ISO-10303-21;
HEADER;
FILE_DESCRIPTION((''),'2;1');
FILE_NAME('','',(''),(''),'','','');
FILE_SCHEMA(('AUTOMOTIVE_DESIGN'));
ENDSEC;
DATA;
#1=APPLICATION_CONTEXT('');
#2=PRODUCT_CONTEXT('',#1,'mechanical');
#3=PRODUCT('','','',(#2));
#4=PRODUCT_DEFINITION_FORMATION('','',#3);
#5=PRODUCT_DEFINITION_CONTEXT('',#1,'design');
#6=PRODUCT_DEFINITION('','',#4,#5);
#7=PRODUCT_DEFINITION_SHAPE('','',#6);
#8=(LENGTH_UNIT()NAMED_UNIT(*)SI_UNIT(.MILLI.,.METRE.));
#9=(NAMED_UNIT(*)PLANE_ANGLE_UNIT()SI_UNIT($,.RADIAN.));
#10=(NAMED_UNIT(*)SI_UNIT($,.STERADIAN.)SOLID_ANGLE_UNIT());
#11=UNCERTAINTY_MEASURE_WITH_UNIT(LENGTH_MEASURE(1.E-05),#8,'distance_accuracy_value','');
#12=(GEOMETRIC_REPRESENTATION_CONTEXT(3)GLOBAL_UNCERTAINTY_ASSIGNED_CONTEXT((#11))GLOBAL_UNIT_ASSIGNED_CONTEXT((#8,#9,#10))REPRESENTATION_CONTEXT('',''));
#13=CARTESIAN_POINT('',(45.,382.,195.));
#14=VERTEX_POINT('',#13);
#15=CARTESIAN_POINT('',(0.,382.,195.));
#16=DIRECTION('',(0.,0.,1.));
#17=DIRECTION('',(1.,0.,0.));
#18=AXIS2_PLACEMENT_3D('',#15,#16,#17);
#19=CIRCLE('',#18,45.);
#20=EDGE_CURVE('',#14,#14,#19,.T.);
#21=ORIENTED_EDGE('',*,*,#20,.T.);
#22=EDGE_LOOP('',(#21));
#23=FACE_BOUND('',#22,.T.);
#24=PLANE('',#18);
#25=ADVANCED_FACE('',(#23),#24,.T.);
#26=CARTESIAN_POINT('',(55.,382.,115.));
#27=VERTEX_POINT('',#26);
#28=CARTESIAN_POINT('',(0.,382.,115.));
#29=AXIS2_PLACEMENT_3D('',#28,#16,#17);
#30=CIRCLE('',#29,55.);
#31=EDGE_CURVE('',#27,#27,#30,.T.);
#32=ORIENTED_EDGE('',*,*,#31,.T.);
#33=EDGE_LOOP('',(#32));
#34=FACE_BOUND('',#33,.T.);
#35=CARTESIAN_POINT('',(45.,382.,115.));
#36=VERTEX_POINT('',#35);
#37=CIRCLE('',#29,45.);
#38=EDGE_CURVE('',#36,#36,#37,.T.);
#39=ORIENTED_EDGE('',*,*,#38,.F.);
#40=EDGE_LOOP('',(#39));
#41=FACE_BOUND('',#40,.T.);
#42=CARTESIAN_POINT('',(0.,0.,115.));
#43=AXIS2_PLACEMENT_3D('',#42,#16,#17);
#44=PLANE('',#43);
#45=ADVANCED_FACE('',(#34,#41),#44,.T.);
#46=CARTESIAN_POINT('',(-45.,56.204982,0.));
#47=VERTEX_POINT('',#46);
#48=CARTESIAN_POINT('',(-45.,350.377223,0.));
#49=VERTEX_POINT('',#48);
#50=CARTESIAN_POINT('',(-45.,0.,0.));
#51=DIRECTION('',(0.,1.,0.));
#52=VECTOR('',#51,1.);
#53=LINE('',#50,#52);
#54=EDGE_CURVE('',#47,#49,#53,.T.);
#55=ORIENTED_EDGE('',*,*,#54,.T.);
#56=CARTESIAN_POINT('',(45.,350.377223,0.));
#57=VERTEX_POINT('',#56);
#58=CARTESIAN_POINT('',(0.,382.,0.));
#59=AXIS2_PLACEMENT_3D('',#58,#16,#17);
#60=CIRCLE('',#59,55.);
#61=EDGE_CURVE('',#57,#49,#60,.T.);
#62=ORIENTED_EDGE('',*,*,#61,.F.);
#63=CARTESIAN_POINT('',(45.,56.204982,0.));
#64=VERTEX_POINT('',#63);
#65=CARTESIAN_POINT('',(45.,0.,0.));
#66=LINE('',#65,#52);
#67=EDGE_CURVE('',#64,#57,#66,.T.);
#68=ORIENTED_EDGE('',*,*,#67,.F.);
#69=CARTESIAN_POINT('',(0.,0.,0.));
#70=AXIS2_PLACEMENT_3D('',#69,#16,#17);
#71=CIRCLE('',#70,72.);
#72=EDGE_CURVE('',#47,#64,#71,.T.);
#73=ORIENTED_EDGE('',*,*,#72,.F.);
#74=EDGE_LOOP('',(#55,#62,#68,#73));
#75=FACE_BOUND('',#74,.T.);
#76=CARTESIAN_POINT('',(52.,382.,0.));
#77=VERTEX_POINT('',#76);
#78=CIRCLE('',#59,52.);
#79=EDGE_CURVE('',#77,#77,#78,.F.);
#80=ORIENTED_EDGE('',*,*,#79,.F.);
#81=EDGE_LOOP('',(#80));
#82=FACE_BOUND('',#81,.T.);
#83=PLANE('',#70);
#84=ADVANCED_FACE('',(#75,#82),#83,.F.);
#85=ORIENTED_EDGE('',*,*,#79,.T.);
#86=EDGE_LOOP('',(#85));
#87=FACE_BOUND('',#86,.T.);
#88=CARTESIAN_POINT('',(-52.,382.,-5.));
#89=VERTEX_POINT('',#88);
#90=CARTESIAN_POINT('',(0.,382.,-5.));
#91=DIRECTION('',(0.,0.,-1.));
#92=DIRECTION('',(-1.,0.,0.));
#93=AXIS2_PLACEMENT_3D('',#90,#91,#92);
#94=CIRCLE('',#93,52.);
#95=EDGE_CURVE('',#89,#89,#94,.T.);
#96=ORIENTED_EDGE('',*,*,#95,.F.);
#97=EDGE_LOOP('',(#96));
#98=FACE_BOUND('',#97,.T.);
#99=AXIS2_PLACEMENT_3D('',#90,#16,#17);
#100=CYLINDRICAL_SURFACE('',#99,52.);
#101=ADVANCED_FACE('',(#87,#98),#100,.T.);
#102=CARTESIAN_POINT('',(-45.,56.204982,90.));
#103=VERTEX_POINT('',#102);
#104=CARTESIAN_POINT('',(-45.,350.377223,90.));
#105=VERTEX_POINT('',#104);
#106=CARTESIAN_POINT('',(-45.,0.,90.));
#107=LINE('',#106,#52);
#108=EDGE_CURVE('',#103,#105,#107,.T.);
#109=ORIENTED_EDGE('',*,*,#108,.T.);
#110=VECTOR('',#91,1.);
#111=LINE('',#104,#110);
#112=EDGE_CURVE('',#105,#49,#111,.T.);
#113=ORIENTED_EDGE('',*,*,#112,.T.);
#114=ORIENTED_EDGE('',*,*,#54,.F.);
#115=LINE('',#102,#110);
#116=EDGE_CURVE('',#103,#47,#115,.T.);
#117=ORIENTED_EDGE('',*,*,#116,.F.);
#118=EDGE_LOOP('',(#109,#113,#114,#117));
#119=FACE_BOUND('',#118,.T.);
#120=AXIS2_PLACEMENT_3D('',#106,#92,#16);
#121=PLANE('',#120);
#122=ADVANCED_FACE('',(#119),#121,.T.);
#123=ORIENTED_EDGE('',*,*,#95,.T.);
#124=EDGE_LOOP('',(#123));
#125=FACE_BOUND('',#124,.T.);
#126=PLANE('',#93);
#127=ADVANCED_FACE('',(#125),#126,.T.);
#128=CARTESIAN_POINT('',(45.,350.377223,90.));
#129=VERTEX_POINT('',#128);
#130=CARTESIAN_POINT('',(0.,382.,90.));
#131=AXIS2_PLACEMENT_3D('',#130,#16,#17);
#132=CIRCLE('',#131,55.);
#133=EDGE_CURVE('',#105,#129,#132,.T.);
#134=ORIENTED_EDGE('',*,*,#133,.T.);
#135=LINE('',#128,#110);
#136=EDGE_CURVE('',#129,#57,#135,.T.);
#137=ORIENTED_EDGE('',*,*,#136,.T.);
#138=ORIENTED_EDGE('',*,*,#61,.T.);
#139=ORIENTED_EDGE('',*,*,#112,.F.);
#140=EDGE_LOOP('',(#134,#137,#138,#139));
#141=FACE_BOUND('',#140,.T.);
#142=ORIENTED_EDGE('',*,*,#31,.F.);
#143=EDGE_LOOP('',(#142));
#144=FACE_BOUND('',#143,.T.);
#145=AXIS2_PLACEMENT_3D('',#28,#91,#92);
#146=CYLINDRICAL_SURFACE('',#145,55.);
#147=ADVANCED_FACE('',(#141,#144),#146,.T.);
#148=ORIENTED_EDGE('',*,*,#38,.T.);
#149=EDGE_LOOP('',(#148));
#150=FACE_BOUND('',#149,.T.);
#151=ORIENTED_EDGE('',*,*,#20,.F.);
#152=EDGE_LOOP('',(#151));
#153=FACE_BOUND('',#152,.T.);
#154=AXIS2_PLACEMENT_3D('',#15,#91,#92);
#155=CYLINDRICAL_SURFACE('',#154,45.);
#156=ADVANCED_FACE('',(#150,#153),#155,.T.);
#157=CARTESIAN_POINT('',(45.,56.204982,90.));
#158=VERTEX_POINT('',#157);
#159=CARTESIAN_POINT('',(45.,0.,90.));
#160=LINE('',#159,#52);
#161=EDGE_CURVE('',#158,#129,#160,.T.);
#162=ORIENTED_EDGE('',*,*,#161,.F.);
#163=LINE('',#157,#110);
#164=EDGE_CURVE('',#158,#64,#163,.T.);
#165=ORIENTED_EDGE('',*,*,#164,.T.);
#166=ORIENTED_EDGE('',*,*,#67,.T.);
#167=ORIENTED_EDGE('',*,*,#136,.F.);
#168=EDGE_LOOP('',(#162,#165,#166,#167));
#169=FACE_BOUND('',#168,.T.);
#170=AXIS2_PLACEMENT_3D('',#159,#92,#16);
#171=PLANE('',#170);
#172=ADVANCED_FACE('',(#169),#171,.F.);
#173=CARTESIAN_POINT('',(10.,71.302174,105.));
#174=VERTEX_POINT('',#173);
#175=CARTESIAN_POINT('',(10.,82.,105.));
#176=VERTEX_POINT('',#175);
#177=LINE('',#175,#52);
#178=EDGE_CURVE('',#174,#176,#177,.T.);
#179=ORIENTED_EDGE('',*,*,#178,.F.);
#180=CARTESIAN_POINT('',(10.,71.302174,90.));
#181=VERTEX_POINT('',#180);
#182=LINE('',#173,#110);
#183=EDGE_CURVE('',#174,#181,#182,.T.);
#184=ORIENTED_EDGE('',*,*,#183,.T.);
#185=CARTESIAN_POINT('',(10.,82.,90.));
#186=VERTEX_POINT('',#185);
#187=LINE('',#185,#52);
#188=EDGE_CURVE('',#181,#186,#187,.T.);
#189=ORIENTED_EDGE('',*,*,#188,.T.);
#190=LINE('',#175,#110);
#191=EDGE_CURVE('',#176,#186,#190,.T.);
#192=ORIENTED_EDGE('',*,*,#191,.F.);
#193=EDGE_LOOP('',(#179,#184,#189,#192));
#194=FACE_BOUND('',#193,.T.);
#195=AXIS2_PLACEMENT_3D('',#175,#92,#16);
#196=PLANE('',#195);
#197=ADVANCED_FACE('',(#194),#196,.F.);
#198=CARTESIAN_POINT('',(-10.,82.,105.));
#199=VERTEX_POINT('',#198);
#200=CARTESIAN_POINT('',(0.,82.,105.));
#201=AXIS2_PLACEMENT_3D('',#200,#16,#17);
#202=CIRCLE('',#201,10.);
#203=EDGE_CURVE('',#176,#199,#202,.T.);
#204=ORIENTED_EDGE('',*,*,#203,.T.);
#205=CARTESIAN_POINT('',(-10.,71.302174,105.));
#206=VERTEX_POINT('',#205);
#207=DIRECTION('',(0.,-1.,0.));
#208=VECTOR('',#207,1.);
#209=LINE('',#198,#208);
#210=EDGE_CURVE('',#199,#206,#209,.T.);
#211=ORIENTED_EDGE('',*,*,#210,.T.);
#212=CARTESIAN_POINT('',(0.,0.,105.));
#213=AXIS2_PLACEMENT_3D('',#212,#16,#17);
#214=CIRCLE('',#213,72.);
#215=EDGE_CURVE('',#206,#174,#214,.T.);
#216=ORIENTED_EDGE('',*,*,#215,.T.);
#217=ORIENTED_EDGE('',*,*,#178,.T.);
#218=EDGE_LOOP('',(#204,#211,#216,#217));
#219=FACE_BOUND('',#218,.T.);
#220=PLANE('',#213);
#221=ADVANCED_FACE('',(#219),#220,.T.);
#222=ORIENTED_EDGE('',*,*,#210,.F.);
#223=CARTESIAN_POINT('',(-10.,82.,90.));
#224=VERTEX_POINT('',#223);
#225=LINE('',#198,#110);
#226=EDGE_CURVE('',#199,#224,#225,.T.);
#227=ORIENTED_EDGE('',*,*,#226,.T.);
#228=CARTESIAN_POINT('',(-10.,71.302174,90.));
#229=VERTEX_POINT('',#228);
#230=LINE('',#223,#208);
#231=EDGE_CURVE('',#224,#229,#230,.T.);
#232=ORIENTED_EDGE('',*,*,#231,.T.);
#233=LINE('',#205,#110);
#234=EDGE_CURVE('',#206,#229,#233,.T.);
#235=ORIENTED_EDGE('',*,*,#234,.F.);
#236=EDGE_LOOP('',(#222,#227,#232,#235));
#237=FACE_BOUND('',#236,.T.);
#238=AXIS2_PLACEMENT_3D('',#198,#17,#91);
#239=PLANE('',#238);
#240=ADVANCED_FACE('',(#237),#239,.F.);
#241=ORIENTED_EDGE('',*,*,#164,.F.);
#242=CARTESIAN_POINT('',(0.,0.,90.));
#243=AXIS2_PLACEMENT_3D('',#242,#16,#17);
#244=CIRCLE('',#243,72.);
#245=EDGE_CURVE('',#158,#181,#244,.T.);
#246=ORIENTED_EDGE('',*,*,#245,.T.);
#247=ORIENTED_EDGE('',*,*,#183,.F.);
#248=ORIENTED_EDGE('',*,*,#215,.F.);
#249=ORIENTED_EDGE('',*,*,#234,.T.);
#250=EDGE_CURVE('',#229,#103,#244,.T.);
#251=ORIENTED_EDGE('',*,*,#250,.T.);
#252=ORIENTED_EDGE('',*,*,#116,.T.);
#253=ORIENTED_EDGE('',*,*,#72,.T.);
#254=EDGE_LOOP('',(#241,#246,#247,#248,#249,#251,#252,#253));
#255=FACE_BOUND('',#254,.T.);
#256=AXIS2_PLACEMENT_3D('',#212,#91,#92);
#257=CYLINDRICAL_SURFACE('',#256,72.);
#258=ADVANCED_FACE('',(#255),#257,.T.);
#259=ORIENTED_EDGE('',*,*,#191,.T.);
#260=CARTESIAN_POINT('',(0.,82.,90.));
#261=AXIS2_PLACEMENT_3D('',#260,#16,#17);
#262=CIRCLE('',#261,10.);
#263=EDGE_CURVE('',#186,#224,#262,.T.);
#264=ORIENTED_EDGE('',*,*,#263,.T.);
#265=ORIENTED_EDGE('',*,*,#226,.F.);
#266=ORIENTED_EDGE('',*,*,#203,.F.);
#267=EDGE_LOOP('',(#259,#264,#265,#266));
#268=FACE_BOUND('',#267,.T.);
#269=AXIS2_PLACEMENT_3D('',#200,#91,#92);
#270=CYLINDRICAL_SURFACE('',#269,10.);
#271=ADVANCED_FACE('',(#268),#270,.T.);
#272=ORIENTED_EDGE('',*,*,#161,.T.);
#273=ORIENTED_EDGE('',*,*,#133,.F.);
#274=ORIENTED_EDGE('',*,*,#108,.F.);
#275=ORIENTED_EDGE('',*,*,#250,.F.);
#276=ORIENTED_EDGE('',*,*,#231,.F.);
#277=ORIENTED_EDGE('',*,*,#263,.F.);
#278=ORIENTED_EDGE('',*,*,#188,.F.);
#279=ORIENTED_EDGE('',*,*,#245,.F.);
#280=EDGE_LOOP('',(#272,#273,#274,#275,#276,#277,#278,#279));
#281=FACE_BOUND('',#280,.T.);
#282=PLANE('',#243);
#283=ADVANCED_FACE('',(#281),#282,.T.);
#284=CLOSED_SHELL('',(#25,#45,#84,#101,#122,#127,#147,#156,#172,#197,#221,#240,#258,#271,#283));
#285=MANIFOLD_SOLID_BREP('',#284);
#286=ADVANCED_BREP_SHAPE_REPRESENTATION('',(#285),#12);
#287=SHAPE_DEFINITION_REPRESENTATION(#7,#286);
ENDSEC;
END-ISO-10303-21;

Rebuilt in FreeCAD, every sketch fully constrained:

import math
import FreeCAD as App
import Part
import Sketcher
from FreeCAD import Vector
Q = App.Units.Quantity

doc = App.newDocument("Part")
body = doc.addObject("PartDesign::Body", "Body")

sketch1 = doc.addObject("Sketcher::SketchObject", "Sketch")
body.addObject(sketch1)
sketch1.AttachmentSupport = (doc.XY_Plane, [""])
sketch1.MapMode = "FlatFace"
sketch1.addGeometry(Part.ArcOfCircle(Part.Circle(Vector(0, 0, 0), Vector(0, 0, 1), 72), math.radians(51.317813), math.radians(128.682187)), False)
sketch1.addGeometry(Part.LineSegment(Vector(45, 56.204982, 0), Vector(45, 350.377223, 0)), False)
sketch1.addGeometry(Part.ArcOfCircle(Part.Circle(Vector(0, 382, 0), Vector(0, 0, 1), 55), math.radians(-144.903199), math.radians(-35.096801)), False)
sketch1.addGeometry(Part.LineSegment(Vector(-45, 350.377223, 0), Vector(-45, 56.204982, 0)), False)
sketch1.addConstraint(Sketcher.Constraint("Coincident", 0, 1, 1, 1))
sketch1.addConstraint(Sketcher.Constraint("Coincident", 1, 2, 2, 2))
sketch1.addConstraint(Sketcher.Constraint("Coincident", 2, 1, 3, 1))
sketch1.addConstraint(Sketcher.Constraint("Coincident", 3, 2, 0, 2))
sketch1.addConstraint(Sketcher.Constraint("Vertical", 1))
sketch1.addConstraint(Sketcher.Constraint("Vertical", 3))
sketch1.addConstraint(Sketcher.Constraint("Coincident", 0, 3, -1, 1))
sketch1.addConstraint(Sketcher.Constraint("Symmetric", 1, 2, 2, 1, -2))
sketch1.addConstraint(Sketcher.Constraint("Radius", 0, Q("72 mm")))
sketch1.addConstraint(Sketcher.Constraint("Radius", 2, Q("55 mm")))
sketch1.addConstraint(Sketcher.Constraint("DistanceY", -1, 1, 2, 3, Q("382 mm")))
sketch1.addConstraint(Sketcher.Constraint("DistanceX", -1, 1, 0, 1, Q("45 mm")))
pad1 = doc.addObject("PartDesign::Pad", "Pad")
body.addObject(pad1)
pad1.Profile = sketch1
pad1.Length = 90

sketch2 = doc.addObject("Sketcher::SketchObject", "Sketch001")
body.addObject(sketch2)
sketch2.AttachmentSupport = (doc.XY_Plane, [""])
sketch2.MapMode = "FlatFace"
sketch2.addGeometry(Part.Circle(Vector(0, 382, 0), Vector(0, 0, 1), 55), False)
sketch2.addConstraint(Sketcher.Constraint("PointOnObject", 0, 3, -2))
sketch2.addConstraint(Sketcher.Constraint("Diameter", 0, Q("110 mm")))
sketch2.addConstraint(Sketcher.Constraint("DistanceY", -1, 1, 0, 3, Q("382 mm")))
pad2 = doc.addObject("PartDesign::Pad", "Pad001")
body.addObject(pad2)
pad2.Profile = sketch2
pad2.Length = 115

sketch3 = doc.addObject("Sketcher::SketchObject", "Sketch002")
body.addObject(sketch3)
sketch3.AttachmentSupport = (doc.XY_Plane, [""])
sketch3.MapMode = "FlatFace"
sketch3.addGeometry(Part.Circle(Vector(0, 0, 0), Vector(0, 0, 1), 72), False)
sketch3.addConstraint(Sketcher.Constraint("Coincident", 0, 3, -1, 1))
sketch3.addConstraint(Sketcher.Constraint("Diameter", 0, Q("144 mm")))
pad3 = doc.addObject("PartDesign::Pad", "Pad002")
body.addObject(pad3)
pad3.Profile = sketch3
pad3.Length = 105

sketch4 = doc.addObject("Sketcher::SketchObject", "Sketch003")
body.addObject(sketch4)
sketch4.AttachmentSupport = (doc.XY_Plane, [""])
sketch4.MapMode = "FlatFace"
sketch4.AttachmentOffset = App.Placement(Vector(0, 0, 90), App.Rotation())
sketch4.addGeometry(Part.LineSegment(Vector(10, 71.302174, 0), Vector(10, 82, 0)), False)
sketch4.addGeometry(Part.ArcOfCircle(Part.Circle(Vector(0, 82, 0), Vector(0, 0, 1), 10), math.radians(0), math.radians(180)), False)
sketch4.addGeometry(Part.LineSegment(Vector(-10, 82, 0), Vector(-10, 71.302174, 0)), False)
sketch4.addGeometry(Part.LineSegment(Vector(-10, 71.302174, 0), Vector(10, 71.302174, 0)), False)
sketch4.addConstraint(Sketcher.Constraint("Tangent", 0, 2, 1, 1))
sketch4.addConstraint(Sketcher.Constraint("Tangent", 1, 2, 2, 1))
sketch4.addConstraint(Sketcher.Constraint("Coincident", 2, 2, 3, 1))
sketch4.addConstraint(Sketcher.Constraint("Coincident", 3, 2, 0, 1))
sketch4.addConstraint(Sketcher.Constraint("Vertical", 0))
sketch4.addConstraint(Sketcher.Constraint("Vertical", 2))
sketch4.addConstraint(Sketcher.Constraint("Horizontal", 3))
sketch4.addConstraint(Sketcher.Constraint("PointOnObject", 1, 3, -2))
sketch4.addConstraint(Sketcher.Constraint("Radius", 1, Q("10 mm")))
sketch4.addConstraint(Sketcher.Constraint("DistanceY", -1, 1, 1, 3, Q("82 mm")))
sketch4.addConstraint(Sketcher.Constraint("DistanceY", 0, 1, 0, 2, Q("10.697826 mm")))
pad4 = doc.addObject("PartDesign::Pad", "Pad003")
body.addObject(pad4)
pad4.Profile = sketch4
pad4.Length = 15

sketch5 = doc.addObject("Sketcher::SketchObject", "Sketch004")
body.addObject(sketch5)
sketch5.AttachmentSupport = (doc.XY_Plane, [""])
sketch5.MapMode = "FlatFace"
sketch5.AttachmentOffset = App.Placement(Vector(0, 0, 115), App.Rotation())
sketch5.addGeometry(Part.Circle(Vector(0, 382, 0), Vector(0, 0, 1), 45), False)
sketch5.addConstraint(Sketcher.Constraint("PointOnObject", 0, 3, -2))
sketch5.addConstraint(Sketcher.Constraint("Diameter", 0, Q("90 mm")))
sketch5.addConstraint(Sketcher.Constraint("DistanceY", -1, 1, 0, 3, Q("382 mm")))
pad5 = doc.addObject("PartDesign::Pad", "Pad004")
body.addObject(pad5)
pad5.Profile = sketch5
pad5.Length = 80

sketch6 = doc.addObject("Sketcher::SketchObject", "Sketch005")
body.addObject(sketch6)
sketch6.AttachmentSupport = (doc.XY_Plane, [""])
sketch6.MapMode = "FlatFace"
sketch6.addGeometry(Part.Circle(Vector(0, 382, 0), Vector(0, 0, 1), 52), False)
sketch6.addConstraint(Sketcher.Constraint("PointOnObject", 0, 3, -2))
sketch6.addConstraint(Sketcher.Constraint("Diameter", 0, Q("104 mm")))
sketch6.addConstraint(Sketcher.Constraint("DistanceY", -1, 1, 0, 3, Q("382 mm")))
pad6 = doc.addObject("PartDesign::Pad", "Pad005")
body.addObject(pad6)
pad6.Profile = sketch6
pad6.Length = 5
pad6.Reversed = True

doc.recompute()
